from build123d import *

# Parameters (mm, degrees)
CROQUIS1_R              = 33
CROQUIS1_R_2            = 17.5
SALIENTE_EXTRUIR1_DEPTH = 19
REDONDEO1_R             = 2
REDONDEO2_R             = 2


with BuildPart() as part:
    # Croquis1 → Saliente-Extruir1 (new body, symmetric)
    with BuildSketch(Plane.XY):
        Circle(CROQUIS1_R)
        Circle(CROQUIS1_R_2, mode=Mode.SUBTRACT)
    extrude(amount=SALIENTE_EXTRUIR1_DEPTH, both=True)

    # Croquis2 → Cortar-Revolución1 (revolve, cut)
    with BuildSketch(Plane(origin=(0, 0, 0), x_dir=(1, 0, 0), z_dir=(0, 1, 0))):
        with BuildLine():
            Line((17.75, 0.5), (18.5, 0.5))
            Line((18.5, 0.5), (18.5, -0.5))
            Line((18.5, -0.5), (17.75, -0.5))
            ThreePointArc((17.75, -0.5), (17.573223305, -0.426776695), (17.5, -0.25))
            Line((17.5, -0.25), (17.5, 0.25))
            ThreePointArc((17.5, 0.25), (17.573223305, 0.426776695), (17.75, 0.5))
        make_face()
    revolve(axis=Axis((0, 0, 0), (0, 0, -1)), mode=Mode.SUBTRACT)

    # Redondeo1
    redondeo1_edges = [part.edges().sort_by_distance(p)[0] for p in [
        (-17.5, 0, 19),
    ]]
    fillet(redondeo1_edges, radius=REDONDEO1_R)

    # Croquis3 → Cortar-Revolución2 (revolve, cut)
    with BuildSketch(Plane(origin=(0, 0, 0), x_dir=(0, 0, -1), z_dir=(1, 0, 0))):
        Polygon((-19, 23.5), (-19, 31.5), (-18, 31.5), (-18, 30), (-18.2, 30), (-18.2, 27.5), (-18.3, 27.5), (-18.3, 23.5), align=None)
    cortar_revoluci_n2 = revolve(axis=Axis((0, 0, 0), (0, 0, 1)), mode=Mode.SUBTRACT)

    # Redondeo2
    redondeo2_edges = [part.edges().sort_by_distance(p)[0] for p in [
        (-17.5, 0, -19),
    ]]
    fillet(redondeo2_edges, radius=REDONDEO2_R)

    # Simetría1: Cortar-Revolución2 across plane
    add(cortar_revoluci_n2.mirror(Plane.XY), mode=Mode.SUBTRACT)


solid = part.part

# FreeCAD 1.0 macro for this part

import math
import FreeCAD as App
import Part
import Sketcher
Q = App.Units.Quantity


def edges_at(feature, points):
    """Names of the edges that pass closest to the given points."""
    edges = feature.Shape.Edges
    near = lambda p: min(range(len(edges)), key=lambda i: edges[i].distToShape(Part.Vertex(*p))[0])
    return sorted({f"Edge{near(p) + 1}" for p in points})


def add_polygon(sketch, points):
    """Adds a closed chain of lines whose ends are joined by coincident constraints."""
    first, n = sketch.GeometryCount, len(points)
    for a, b in zip(points, points[1:] + points[:1]):
        sketch.addGeometry(Part.LineSegment(App.Vector(*a, 0), App.Vector(*b, 0)), False)
    for i in range(n):
        sketch.addConstraint(Sketcher.Constraint("Coincident", first + i, 2, first + (i + 1) % n, 1))

doc = App.newDocument("Part")
body = doc.addObject("PartDesign::Body", "Body")

# Sketch on XY plane
sketch1 = doc.addObject("Sketcher::SketchObject", "Sketch")
body.addObject(sketch1)
sketch1.AttachmentSupport = (doc.XY_Plane, [""])
sketch1.MapMode = "FlatFace"
sketch1.addGeometry([
    Part.Circle(App.Vector(0, 0, 0), App.Vector(0, 0, 1), 33),
    Part.Circle(App.Vector(0, 0, 0), App.Vector(0, 0, 1), 18),
], False)
sketch1.addConstraint([
    Sketcher.Constraint("Coincident", 0, 3, -1, 1),
    Sketcher.Constraint("Coincident", 1, 3, -1, 1),
    Sketcher.Constraint("Diameter", 0, Q("66 mm")),
    Sketcher.Constraint("Diameter", 1, Q("35 mm")),
])
pad1 = doc.addObject("PartDesign::Pad", "Pad")
body.addObject(pad1)
pad1.Profile = sketch1
pad1.Length = 38
pad1.Midplane = True

# Sketch on XZ plane
sketch2 = doc.addObject("Sketcher::SketchObject", "Sketch001")
body.addObject(sketch2)
sketch2.AttachmentSupport = (doc.XZ_Plane, [""])
sketch2.MapMode = "FlatFace"
sketch2.addGeometry([
    Part.LineSegment(App.Vector(18.5, -0.5, 0), App.Vector(17.75, -0.5, 0)),  # 0
    Part.ArcOfCircle(Part.Circle(App.Vector(17.75, -0.25, 0), App.Vector(0, 0, 1), 0.25), math.radians(-180), math.radians(-90)),  # 1
    Part.LineSegment(App.Vector(17.5, -0.25, 0), App.Vector(17.5, 0.25, 0)),  # 2
    Part.ArcOfCircle(Part.Circle(App.Vector(17.75, 0.25, 0), App.Vector(0, 0, 1), 0.25), math.radians(90), math.radians(180)),  # 3
    Part.LineSegment(App.Vector(17.75, 0.5, 0), App.Vector(18.5, 0.5, 0)),  # 4
    Part.LineSegment(App.Vector(18.5, 0.5, 0), App.Vector(18.5, -0.5, 0)),  # 5
], False)
sketch2.addConstraint([
    Sketcher.Constraint("Tangent", 0, 2, 1, 2),
    Sketcher.Constraint("Tangent", 1, 1, 2, 1),
    Sketcher.Constraint("Tangent", 2, 2, 3, 2),
    Sketcher.Constraint("Tangent", 3, 1, 4, 1),
    Sketcher.Constraint("Coincident", 4, 2, 5, 1),
    Sketcher.Constraint("Coincident", 5, 2, 0, 1),
    Sketcher.Constraint("Horizontal", 0),
    Sketcher.Constraint("Vertical", 2),
    Sketcher.Constraint("Horizontal", 4),
    Sketcher.Constraint("Vertical", 5),
    Sketcher.Constraint("Equal", 1, 3),
    Sketcher.Constraint("DistanceY", 5, 2, 5, 1, Q("1 mm")),
    Sketcher.Constraint("Radius", 1, Q("0.25 mm")),
    Sketcher.Constraint("DistanceX", 2, 2, 4, 2, Q("1 mm")),
    Sketcher.Constraint("DistanceY", 0, 2, -1, 1, Q("0.5 mm")),
    Sketcher.Constraint("DistanceX", -1, 1, 1, 1, Q("17.5 mm")),
])
groove = doc.addObject("PartDesign::Groove", "Groove")
body.addObject(groove)
groove.Profile = sketch2
groove.ReferenceAxis = (sketch2, ["V_Axis"])
groove.Angle = 360
doc.recompute()

fillet = doc.addObject("PartDesign::Fillet", "Fillet")
body.addObject(fillet)
fillet.Base = (groove, edges_at(groove, [(-17.5, 0, 19)]))
fillet.Radius = 2

# Sketch on YZ plane
sketch3 = doc.addObject("Sketcher::SketchObject", "Sketch002")
body.addObject(sketch3)
sketch3.AttachmentSupport = (doc.YZ_Plane, [""])
sketch3.MapMode = "FlatFace"
add_polygon(sketch3, [(31.5, 19), (23.5, 19), (23.5, 18.3), (27.5, 18.3), (27.5, 18.2), (30, 18.2), (30, 18), (31.5, 18)])  # lines 0-7
sketch3.addConstraint([
    Sketcher.Constraint("Horizontal", 0),
    Sketcher.Constraint("Vertical", 1),
    Sketcher.Constraint("Horizontal", 2),
    Sketcher.Constraint("Vertical", 3),
    Sketcher.Constraint("Horizontal", 4),
    Sketcher.Constraint("Vertical", 5),
    Sketcher.Constraint("Horizontal", 6),
    Sketcher.Constraint("Vertical", 7),
    Sketcher.Constraint("DistanceX", 0, 2, 0, 1, Q("8 mm")),
    Sketcher.Constraint("DistanceX", 2, 1, 2, 2, Q("4 mm")),
    Sketcher.Constraint("DistanceY", 7, 1, 7, 2, Q("1 mm")),
    Sketcher.Constraint("DistanceX", 4, 1, 4, 2, Q("2.5 mm")),
    Sketcher.Constraint("DistanceY", 1, 2, 1, 1, Q("0.7 mm")),
    Sketcher.Constraint("DistanceY", 3, 2, 3, 1, Q("0.1 mm")),
    Sketcher.Constraint("DistanceY", -1, 1, 0, 2, Q("19 mm")),
    Sketcher.Constraint("DistanceX", -1, 1, 4, 2, Q("30 mm")),
])
groove2 = doc.addObject("PartDesign::Groove", "Groove001")
body.addObject(groove2)
groove2.Profile = sketch3
groove2.ReferenceAxis = (sketch3, ["V_Axis"])
groove2.Angle = 360
doc.recompute()

fillet2 = doc.addObject("PartDesign::Fillet", "Fillet001")
body.addObject(fillet2)
fillet2.Base = (groove2, edges_at(groove2, [(-17.5, 0, -19)]))
fillet2.Radius = 2
doc.recompute()

mirrored = doc.addObject("PartDesign::Mirrored", "Mirrored")
body.addObject(mirrored)
mirrored.Originals = [groove2]
mirrored.MirrorPlane = (doc.XY_Plane, [""])
body.Tip = mirrored

doc.recompute()
